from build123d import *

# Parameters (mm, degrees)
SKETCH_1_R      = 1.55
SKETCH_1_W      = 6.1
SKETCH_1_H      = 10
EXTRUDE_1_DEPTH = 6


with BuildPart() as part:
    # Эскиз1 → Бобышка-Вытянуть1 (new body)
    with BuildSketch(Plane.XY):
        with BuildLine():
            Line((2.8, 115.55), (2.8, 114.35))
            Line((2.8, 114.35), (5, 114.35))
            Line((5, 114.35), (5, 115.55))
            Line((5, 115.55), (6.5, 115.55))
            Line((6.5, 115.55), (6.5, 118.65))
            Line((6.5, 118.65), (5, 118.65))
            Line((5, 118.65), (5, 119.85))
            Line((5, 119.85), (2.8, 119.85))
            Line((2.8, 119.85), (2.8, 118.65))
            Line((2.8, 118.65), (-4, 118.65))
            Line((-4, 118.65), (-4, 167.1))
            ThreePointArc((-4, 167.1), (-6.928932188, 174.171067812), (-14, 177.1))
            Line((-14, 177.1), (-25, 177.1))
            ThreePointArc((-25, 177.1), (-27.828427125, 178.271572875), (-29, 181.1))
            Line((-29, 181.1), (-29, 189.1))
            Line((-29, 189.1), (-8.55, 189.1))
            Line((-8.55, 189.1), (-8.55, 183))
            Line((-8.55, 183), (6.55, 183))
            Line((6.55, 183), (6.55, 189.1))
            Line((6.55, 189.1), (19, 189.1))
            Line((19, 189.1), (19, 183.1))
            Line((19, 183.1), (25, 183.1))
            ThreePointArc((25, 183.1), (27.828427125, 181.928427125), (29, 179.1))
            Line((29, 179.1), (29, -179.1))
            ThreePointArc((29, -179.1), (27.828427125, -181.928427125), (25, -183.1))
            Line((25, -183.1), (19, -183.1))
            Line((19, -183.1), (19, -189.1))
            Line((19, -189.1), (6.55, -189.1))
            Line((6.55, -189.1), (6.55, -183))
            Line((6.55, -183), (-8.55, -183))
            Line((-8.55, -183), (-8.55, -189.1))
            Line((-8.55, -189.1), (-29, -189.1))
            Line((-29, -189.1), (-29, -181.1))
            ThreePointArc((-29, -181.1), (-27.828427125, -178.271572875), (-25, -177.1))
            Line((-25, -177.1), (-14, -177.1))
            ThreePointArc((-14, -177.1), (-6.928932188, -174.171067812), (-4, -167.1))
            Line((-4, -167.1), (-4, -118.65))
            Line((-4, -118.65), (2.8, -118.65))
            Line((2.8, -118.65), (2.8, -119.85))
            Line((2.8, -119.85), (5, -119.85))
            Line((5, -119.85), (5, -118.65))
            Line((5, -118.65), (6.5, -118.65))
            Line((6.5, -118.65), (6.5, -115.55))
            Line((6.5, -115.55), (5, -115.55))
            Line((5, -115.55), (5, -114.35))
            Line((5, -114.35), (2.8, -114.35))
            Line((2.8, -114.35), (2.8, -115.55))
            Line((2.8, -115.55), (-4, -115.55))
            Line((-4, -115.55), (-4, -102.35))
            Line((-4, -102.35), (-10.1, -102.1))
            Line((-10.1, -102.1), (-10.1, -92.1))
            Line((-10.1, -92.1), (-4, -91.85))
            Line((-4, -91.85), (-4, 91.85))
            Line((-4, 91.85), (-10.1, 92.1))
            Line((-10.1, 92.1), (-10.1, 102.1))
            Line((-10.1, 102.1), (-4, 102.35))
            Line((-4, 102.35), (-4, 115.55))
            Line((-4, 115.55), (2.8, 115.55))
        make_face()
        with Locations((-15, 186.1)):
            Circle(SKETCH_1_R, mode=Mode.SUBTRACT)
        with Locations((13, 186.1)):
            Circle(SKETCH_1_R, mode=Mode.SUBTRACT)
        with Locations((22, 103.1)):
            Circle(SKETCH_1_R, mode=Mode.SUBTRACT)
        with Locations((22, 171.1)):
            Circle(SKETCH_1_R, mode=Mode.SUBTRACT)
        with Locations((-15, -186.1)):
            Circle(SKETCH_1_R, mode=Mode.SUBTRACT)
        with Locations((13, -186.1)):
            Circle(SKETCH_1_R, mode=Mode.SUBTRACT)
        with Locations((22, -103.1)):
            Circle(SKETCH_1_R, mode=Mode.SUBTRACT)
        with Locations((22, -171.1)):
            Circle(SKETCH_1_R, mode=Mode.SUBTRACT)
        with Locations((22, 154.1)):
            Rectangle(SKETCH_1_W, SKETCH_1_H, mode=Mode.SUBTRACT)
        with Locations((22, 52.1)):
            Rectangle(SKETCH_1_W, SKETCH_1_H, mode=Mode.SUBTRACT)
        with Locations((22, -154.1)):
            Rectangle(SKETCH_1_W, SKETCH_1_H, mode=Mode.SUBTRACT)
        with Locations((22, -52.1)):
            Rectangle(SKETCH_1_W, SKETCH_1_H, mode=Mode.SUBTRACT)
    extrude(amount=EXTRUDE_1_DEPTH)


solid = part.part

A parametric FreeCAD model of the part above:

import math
import FreeCAD as App
import Part
import Sketcher
from FreeCAD import Vector


def add_polygon(sketch, points):
    """Adds a closed chain of lines whose ends are joined by coincident constraints."""
    first, n = sketch.GeometryCount, len(points)
    for a, b in zip(points, points[1:] + points[:1]):
        sketch.addGeometry(Part.LineSegment(App.Vector(*a, 0), App.Vector(*b, 0)), False)
    for i in range(n):
        sketch.addConstraint(Sketcher.Constraint("Coincident", first + i, 2, first + (i + 1) % n, 1))

doc = App.newDocument("Part")
body = doc.addObject("PartDesign::Body", "Body")

# Sketch on XY plane
sketch1 = body.newObject("Sketcher::SketchObject", "Sketch")
sketch1.AttachmentSupport = (doc.getObject("XY_Plane"), [""])
sketch1.MapMode = "FlatFace"
sketch1.addGeometry(Part.LineSegment(Vector(2.8, 114.3, 0), Vector(2.8, 115.5, 0)), False)  # 0
sketch1.addGeometry(Part.LineSegment(Vector(2.8, 115.5, 0), Vector(-4, 115.5, 0)), False)  # 1
sketch1.addGeometry(Part.LineSegment(Vector(-4, 115.5, 0), Vector(-4, 102.3, 0)), False)  # 2
sketch1.addGeometry(Part.LineSegment(Vector(-4, 102.3, 0), Vector(-10.1, 102.1, 0)), False)  # 3
sketch1.addGeometry(Part.LineSegment(Vector(-10.1, 102.1, 0), Vector(-10.1, 92.1, 0)), False)  # 4
sketch1.addGeometry(Part.LineSegment(Vector(-10.1, 92.1, 0), Vector(-4, 91.8, 0)), False)  # 5
sketch1.addGeometry(Part.LineSegment(Vector(-4, 91.8, 0), Vector(-4, -91.8, 0)), False)  # 6
sketch1.addGeometry(Part.LineSegment(Vector(-4, -91.8, 0), Vector(-10.1, -92.1, 0)), False)  # 7
sketch1.addGeometry(Part.LineSegment(Vector(-10.1, -92.1, 0), Vector(-10.1, -102.1, 0)), False)  # 8
sketch1.addGeometry(Part.LineSegment(Vector(-10.1, -102.1, 0), Vector(-4, -102.3, 0)), False)  # 9
sketch1.addGeometry(Part.LineSegment(Vector(-4, -102.3, 0), Vector(-4, -115.5, 0)), False)  # 10
sketch1.addGeometry(Part.LineSegment(Vector(-4, -115.5, 0), Vector(2.8, -115.5, 0)), False)  # 11
sketch1.addGeometry(Part.LineSegment(Vector(2.8, -115.5, 0), Vector(2.8, -114.3, 0)), False)  # 12
sketch1.addGeometry(Part.LineSegment(Vector(2.8, -114.3, 0), Vector(5, -114.3, 0)), False)  # 13
sketch1.addGeometry(Part.LineSegment(Vector(5, -114.3, 0), Vector(5, -115.5, 0)), False)  # 14
sketch1.addGeometry(Part.LineSegment(Vector(5, -115.5, 0), Vector(6.5, -115.5, 0)), False)  # 15
sketch1.addGeometry(Part.LineSegment(Vector(6.5, -115.5, 0), Vector(6.5, -118.7, 0)), False)  # 16
sketch1.addGeometry(Part.LineSegment(Vector(6.5, -118.7, 0), Vector(5, -118.7, 0)), False)  # 17
sketch1.addGeometry(Part.LineSegment(Vector(5, -118.7, 0), Vector(5, -119.8, 0)), False)  # 18
sketch1.addGeometry(Part.LineSegment(Vector(5, -119.8, 0), Vector(2.8, -119.8, 0)), False)  # 19
sketch1.addGeometry(Part.LineSegment(Vector(2.8, -119.8, 0), Vector(2.8, -118.7, 0)), False)  # 20
sketch1.addGeometry(Part.LineSegment(Vector(2.8, -118.7, 0), Vector(-4, -118.7, 0)), False)  # 21
sketch1.addGeometry(Part.LineSegment(Vector(-4, -118.7, 0), Vector(-4, -167.1, 0)), False)  # 22
sketch1.addGeometry(Part.ArcOfCircle(Part.Circle(Vector(-14, -167.1, 0), Vector(0, 0, 1), 10), math.radians(-90), math.radians(0)), False)  # 23
sketch1.addGeometry(Part.LineSegment(Vector(-14, -177.1, 0), Vector(-25, -177.1, 0)), False)  # 24
sketch1.addGeometry(Part.ArcOfCircle(Part.Circle(Vector(-25, -181.1, 0), Vector(0, 0, 1), 4), math.radians(90), math.radians(180)), False)  # 25
sketch1.addGeometry(Part.LineSegment(Vector(-29, -181.1, 0), Vector(-29, -189.1, 0)), False)  # 26
sketch1.addGeometry(Part.LineSegment(Vector(-29, -189.1, 0), Vector(-8.6, -189.1, 0)), False)  # 27
sketch1.addGeometry(Part.LineSegment(Vector(-8.6, -189.1, 0), Vector(-8.6, -183, 0)), False)  # 28
sketch1.addGeometry(Part.LineSegment(Vector(-8.6, -183, 0), Vector(6.5, -183, 0)), False)  # 29
sketch1.addGeometry(Part.LineSegment(Vector(6.5, -183, 0), Vector(6.5, -189.1, 0)), False)  # 30
sketch1.addGeometry(Part.LineSegment(Vector(6.5, -189.1, 0), Vector(19, -189.1, 0)), False)  # 31
sketch1.addGeometry(Part.LineSegment(Vector(19, -189.1, 0), Vector(19, -183.1, 0)), False)  # 32
sketch1.addGeometry(Part.LineSegment(Vector(19, -183.1, 0), Vector(25, -183.1, 0)), False)  # 33
sketch1.addGeometry(Part.ArcOfCircle(Part.Circle(Vector(25, -179.1, 0), Vector(0, 0, 1), 4), math.radians(-90), math.radians(0)), False)  # 34
sketch1.addGeometry(Part.LineSegment(Vector(29, -179.1, 0), Vector(29, 179.1, 0)), False)  # 35
sketch1.addGeometry(Part.ArcOfCircle(Part.Circle(Vector(25, 179.1, 0), Vector(0, 0, 1), 4), math.radians(0), math.radians(90)), False)  # 36
sketch1.addGeometry(Part.LineSegment(Vector(25, 183.1, 0), Vector(19, 183.1, 0)), False)  # 37
sketch1.addGeometry(Part.LineSegment(Vector(19, 183.1, 0), Vector(19, 189.1, 0)), False)  # 38
sketch1.addGeometry(Part.LineSegment(Vector(19, 189.1, 0), Vector(6.5, 189.1, 0)), False)  # 39
sketch1.addGeometry(Part.LineSegment(Vector(6.5, 189.1, 0), Vector(6.5, 183, 0)), False)  # 40
sketch1.addGeometry(Part.LineSegment(Vector(6.5, 183, 0), Vector(-8.6, 183, 0)), False)  # 41
sketch1.addGeometry(Part.LineSegment(Vector(-8.6, 183, 0), Vector(-8.6, 189.1, 0)), False)  # 42
sketch1.addGeometry(Part.LineSegment(Vector(-8.6, 189.1, 0), Vector(-29, 189.1, 0)), False)  # 43
sketch1.addGeometry(Part.LineSegment(Vector(-29, 189.1, 0), Vector(-29, 181.1, 0)), False)  # 44
sketch1.addGeometry(Part.ArcOfCircle(Part.Circle(Vector(-25, 181.1, 0), Vector(0, 0, 1), 4), math.radians(180), math.radians(270)), False)  # 45
sketch1.addGeometry(Part.LineSegment(Vector(-25, 177.1, 0), Vector(-14, 177.1, 0)), False)  # 46
sketch1.addGeometry(Part.ArcOfCircle(Part.Circle(Vector(-14, 167.1, 0), Vector(0, 0, 1), 10), math.radians(0), math.radians(90)), False)  # 47
sketch1.addGeometry(Part.LineSegment(Vector(-4, 167.1, 0), Vector(-4, 118.7, 0)), False)  # 48
sketch1.addGeometry(Part.LineSegment(Vector(-4, 118.7, 0), Vector(2.8, 118.7, 0)), False)  # 49
sketch1.addGeometry(Part.LineSegment(Vector(2.8, 118.7, 0), Vector(2.8, 119.8, 0)), False)  # 50
sketch1.addGeometry(Part.LineSegment(Vector(2.8, 119.8, 0), Vector(5, 119.8, 0)), False)  # 51
sketch1.addGeometry(Part.LineSegment(Vector(5, 119.8, 0), Vector(5, 118.7, 0)), False)  # 52
sketch1.addGeometry(Part.LineSegment(Vector(5, 118.7, 0), Vector(6.5, 118.7, 0)), False)  # 53
sketch1.addGeometry(Part.LineSegment(Vector(6.5, 118.7, 0), Vector(6.5, 115.5, 0)), False)  # 54
sketch1.addGeometry(Part.LineSegment(Vector(6.5, 115.5, 0), Vector(5, 115.5, 0)), False)  # 55
sketch1.addGeometry(Part.LineSegment(Vector(5, 115.5, 0), Vector(5, 114.3, 0)), False)  # 56
sketch1.addGeometry(Part.LineSegment(Vector(5, 114.3, 0), Vector(2.8, 114.3, 0)), False)  # 57
sketch1.addGeometry(Part.Circle(Vector(22, -171.1, 0), Vector(0, 0, 1), 1.6), False)  # 58
add_polygon(sketch1, [(18.9, -159.1), (18.9, -149.1), (25.1, -149.1), (25.1, -159.1)])  # lines 59-62
sketch1.addGeometry(Part.Circle(Vector(22, -103.1, 0), Vector(0, 0, 1), 1.6), False)  # 63
sketch1.addGeometry(Part.Circle(Vector(13, -186.1, 0), Vector(0, 0, 1), 1.6), False)  # 64
add_polygon(sketch1, [(18.9, -57.1), (18.9, -47.1), (25.1, -47.1), (25.1, -57.1)])  # lines 65-68
sketch1.addGeometry(Part.Circle(Vector(-15, -186.1, 0), Vector(0, 0, 1), 1.6), False)  # 69
add_polygon(sketch1, [(18.9, 47.1), (18.9, 57.1), (25.1, 57.1), (25.1, 47.1)])  # lines 70-73
sketch1.addGeometry(Part.Circle(Vector(22, 103.1, 0), Vector(0, 0, 1), 1.6), False)  # 74
add_polygon(sketch1, [(18.9, 149.1), (18.9, 159.1), (25.1, 159.1), (25.1, 149.1)])  # lines 75-78
sketch1.addGeometry(Part.Circle(Vector(22, 171.1, 0), Vector(0, 0, 1), 1.6), False)  # 79
sketch1.addGeometry(Part.Circle(Vector(13, 186.1, 0), Vector(0, 0, 1), 1.6), False)  # 80
sketch1.addGeometry(Part.Circle(Vector(-15, 186.1, 0), Vector(0, 0, 1), 1.6), False)  # 81
sketch1.addConstraint([
    Sketcher.Constraint("Coincident", 0, 2, 1, 1),
    Sketcher.Constraint("Coincident", 1, 2, 2, 1),
    Sketcher.Constraint("Coincident", 2, 2, 3, 1),
    Sketcher.Constraint("Coincident", 3, 2, 4, 1),
    Sketcher.Constraint("Coincident", 4, 2, 5, 1),
    Sketcher.Constraint("Coincident", 5, 2, 6, 1),
    Sketcher.Constraint("Coincident", 6, 2, 7, 1),
    Sketcher.Constraint("Coincident", 7, 2, 8, 1),
    Sketcher.Constraint("Coincident", 8, 2, 9, 1),
    Sketcher.Constraint("Coincident", 9, 2, 10, 1),
    Sketcher.Constraint("Coincident", 10, 2, 11, 1),
    Sketcher.Constraint("Coincident", 11, 2, 12, 1),
    Sketcher.Constraint("Coincident", 12, 2, 13, 1),
    Sketcher.Constraint("Coincident", 13, 2, 14, 1),
    Sketcher.Constraint("Coincident", 14, 2, 15, 1),
    Sketcher.Constraint("Coincident", 15, 2, 16, 1),
    Sketcher.Constraint("Coincident", 16, 2, 17, 1),
    Sketcher.Constraint("Coincident", 17, 2, 18, 1),
    Sketcher.Constraint("Coincident", 18, 2, 19, 1),
    Sketcher.Constraint("Coincident", 19, 2, 20, 1),
    Sketcher.Constraint("Coincident", 20, 2, 21, 1),
    Sketcher.Constraint("Coincident", 21, 2, 22, 1),
    Sketcher.Constraint("Tangent", 22, 2, 23, 2),
    Sketcher.Constraint("Tangent", 23, 1, 24, 1),
    Sketcher.Constraint("Tangent", 24, 2, 25, 1),
    Sketcher.Constraint("Tangent", 25, 2, 26, 1),
    Sketcher.Constraint("Coincident", 26, 2, 27, 1),
    Sketcher.Constraint("Coincident", 27, 2, 28, 1),
    Sketcher.Constraint("Coincident", 28, 2, 29, 1),
    Sketcher.Constraint("Coincident", 29, 2, 30, 1),
    Sketcher.Constraint("Coincident", 30, 2, 31, 1),
    Sketcher.Constraint("Coincident", 31, 2, 32, 1),
    Sketcher.Constraint("Coincident", 32, 2, 33, 1),
    Sketcher.Constraint("Tangent", 33, 2, 34, 1),
    Sketcher.Constraint("Tangent", 34, 2, 35, 1),
    Sketcher.Constraint("Tangent", 35, 2, 36, 1),
    Sketcher.Constraint("Tangent", 36, 2, 37, 1),
    Sketcher.Constraint("Coincident", 37, 2, 38, 1),
    Sketcher.Constraint("Coincident", 38, 2, 39, 1),
    Sketcher.Constraint("Coincident", 39, 2, 40, 1),
    Sketcher.Constraint("Coincident", 40, 2, 41, 1),
    Sketcher.Constraint("Coincident", 41, 2, 42, 1),
    Sketcher.Constraint("Coincident", 42, 2, 43, 1),
    Sketcher.Constraint("Coincident", 43, 2, 44, 1),
    Sketcher.Constraint("Tangent", 44, 2, 45, 1),
    Sketcher.Constraint("Tangent", 45, 2, 46, 1),
    Sketcher.Constraint("Tangent", 46, 2, 47, 2),
    Sketcher.Constraint("Tangent", 47, 1, 48, 1),
    Sketcher.Constraint("Coincident", 48, 2, 49, 1),
    Sketcher.Constraint("Coincident", 49, 2, 50, 1),
    Sketcher.Constraint("Coincident", 50, 2, 51, 1),
    Sketcher.Constraint("Coincident", 51, 2, 52, 1),
    Sketcher.Constraint("Coincident", 52, 2, 53, 1),
    Sketcher.Constraint("Coincident", 53, 2, 54, 1),
    Sketcher.Constraint("Coincident", 54, 2, 55, 1),
    Sketcher.Constraint("Coincident", 55, 2, 56, 1),
    Sketcher.Constraint("Coincident", 56, 2, 57, 1),
    Sketcher.Constraint("Coincident", 57, 2, 0, 1),
    Sketcher.Constraint("Vertical", 0),
    Sketcher.Constraint("Horizontal", 1),
    Sketcher.Constraint("Vertical", 2),
    Sketcher.Constraint("Vertical", 4),
    Sketcher.Constraint("Vertical", 6),
    Sketcher.Constraint("Vertical", 8),
    Sketcher.Constraint("Vertical", 10),
    Sketcher.Constraint("Horizontal", 11),
    Sketcher.Constraint("Vertical", 12),
    Sketcher.Constraint("Horizontal", 13),
    Sketcher.Constraint("Vertical", 14),
    Sketcher.Constraint("Horizontal", 15),
    Sketcher.Constraint("Vertical", 16),
    Sketcher.Constraint("Horizontal", 17),
    Sketcher.Constraint("Vertical", 18),
    Sketcher.Constraint("Horizontal", 19),
    Sketcher.Constraint("Vertical", 20),
    Sketcher.Constraint("Horizontal", 21),
    Sketcher.Constraint("Vertical", 22),
    Sketcher.Constraint("Horizontal", 24),
    Sketcher.Constraint("Vertical", 26),
    Sketcher.Constraint("Horizontal", 27),
    Sketcher.Constraint("Vertical", 28),
    Sketcher.Constraint("Horizontal", 29),
    Sketcher.Constraint("Vertical", 30),
    Sketcher.Constraint("Horizontal", 31),
    Sketcher.Constraint("Vertical", 32),
    Sketcher.Constraint("Horizontal", 33),
    Sketcher.Constraint("Vertical", 35),
    Sketcher.Constraint("Horizontal", 37),
    Sketcher.Constraint("Vertical", 38),
    Sketcher.Constraint("Horizontal", 39),
    Sketcher.Constraint("Vertical", 40),
    Sketcher.Constraint("Horizontal", 41),
    Sketcher.Constraint("Vertical", 42),
    Sketcher.Constraint("Horizontal", 43),
    Sketcher.Constraint("Vertical", 44),
    Sketcher.Constraint("Horizontal", 46),
    Sketcher.Constraint("Vertical", 48),
    Sketcher.Constraint("Horizontal", 49),
    Sketcher.Constraint("Vertical", 50),
    Sketcher.Constraint("Horizontal", 51),
    Sketcher.Constraint("Vertical", 52),
    Sketcher.Constraint("Horizontal", 53),
    Sketcher.Constraint("Vertical", 54),
    Sketcher.Constraint("Horizontal", 55),
    Sketcher.Constraint("Vertical", 56),
    Sketcher.Constraint("Horizontal", 57),
    Sketcher.Constraint("Vertical", 59),
    Sketcher.Constraint("Horizontal", 60),
    Sketcher.Constraint("Vertical", 61),
    Sketcher.Constraint("Horizontal", 62),
    Sketcher.Constraint("Vertical", 65),
    Sketcher.Constraint("Horizontal", 66),
    Sketcher.Constraint("Vertical", 67),
    Sketcher.Constraint("Horizontal", 68),
    Sketcher.Constraint("Vertical", 70),
    Sketcher.Constraint("Horizontal", 71),
    Sketcher.Constraint("Vertical", 72),
    Sketcher.Constraint("Horizontal", 73),
    Sketcher.Constraint("Vertical", 75),
    Sketcher.Constraint("Horizontal", 76),
    Sketcher.Constraint("Vertical", 77),
    Sketcher.Constraint("Horizontal", 78),
    Sketcher.Constraint("Equal", 25, 34),
    Sketcher.Constraint("Equal", 34, 36),
    Sketcher.Constraint("Equal", 36, 45),
    Sketcher.Constraint("Equal", 23, 47),
    Sketcher.Constraint("Equal", 58, 63),
    Sketcher.Constraint("Equal", 63, 64),
    Sketcher.Constraint("Equal", 64, 69),
    Sketcher.Constraint("Equal", 69, 74),
    Sketcher.Constraint("Equal", 74, 79),
    Sketcher.Constraint("Equal", 79, 80),
    Sketcher.Constraint("Equal", 80, 81),
    Sketcher.Constraint("Symmetric", 25, 3, 45, 3, -1),
    Sketcher.Constraint("Symmetric", 63, 3, 74, 3, -1),
    Sketcher.Constraint("Symmetric", 58, 3, 79, 3, -1),
    Sketcher.Constraint("Symmetric", 64, 3, 80, 3, -1),
    Sketcher.Constraint("Symmetric", 69, 3, 81, 3, -1),
    Sketcher.Constraint("Symmetric", 4, 2, 7, 2, -1),
    Sketcher.Constraint("Symmetric", 2, 2, 9, 2, -1),
    Sketcher.Constraint("Symmetric", 0, 2, 11, 2, -1),
    Sketcher.Constraint("Symmetric", 32, 2, 37, 2, -1),
    Sketcher.Constraint("Symmetric", 30, 2, 39, 2, -1),
    Sketcher.Constraint("Symmetric", 28, 2, 41, 2, -1),
    Sketcher.Constraint("Symmetric", 21, 2, 48, 2, -1),
    Sketcher.Constraint("Symmetric", 19, 2, 50, 2, -1),
    Sketcher.Constraint("Symmetric", 17, 2, 52, 2, -1),
    Sketcher.Constraint("Symmetric", 15, 2, 54, 2, -1),
    Sketcher.Constraint("Symmetric", 13, 2, 56, 2, -1),
    Sketcher.Constraint("Symmetric", 68, 2, 70, 2, -1),
    Sketcher.Constraint("Symmetric", 66, 2, 72, 2, -1),
    Sketcher.Constraint("Symmetric", 62, 2, 75, 2, -1),
    Sketcher.Constraint("Symmetric", 60, 2, 77, 2, -1),
    Sketcher.Constraint("Parallel", 3, 7),
    Sketcher.Constraint("Parallel", 5, 9),
    Sketcher.Constraint("Horizontal", 64, 3, 69, 3),
    Sketcher.Constraint("Horizontal", 11, 2, 14, 2),
    Sketcher.Constraint("Horizontal", 17, 2, 20, 2),
    Sketcher.Constraint("Horizontal", 27, 2, 30, 2),
    Sketcher.Constraint("Horizontal", 39, 2, 42, 2),
    Sketcher.Constraint("Vertical", 58, 3, 63, 3),
    Sketcher.Constraint("Vertical", 2, 2, 5, 2),
    Sketcher.Constraint("Vertical", 14, 2, 17, 2),
    Sketcher.Constraint("Vertical", 12, 2, 19, 2),
    Sketcher.Constraint("Vertical", 10, 2, 21, 2),
    Sketcher.Constraint("Vertical", 62, 2, 65, 2),
    Sketcher.Constraint("Vertical", 61, 2, 66, 2),
    Sketcher.Constraint("Equal", 4, 8),
    Sketcher.Constraint("Equal", 14, 18),
    Sketcher.Constraint("Equal", 78, 28),
    Sketcher.Constraint("Equal", 37, 32),
    Sketcher.Constraint("Equal", 8, 59),
    Sketcher.Constraint("Equal", 61, 65),
    Sketcher.Constraint("Radius", 23, 10.0),
    Sketcher.Constraint("Radius", 25, 4.0),
    Sketcher.Constraint("Diameter", 58, 3.1),
    Sketcher.Constraint("DistanceX", 24, 2, 24, 1, 11.0),
    Sketcher.Constraint("DistanceX", 33, 1, 33, 2, 6.0),
    Sketcher.Constraint("DistanceY", 4, 2, 4, 1, 10.0),
    Sketcher.Constraint("DistanceY", 26, 2, 26, 1, 8.0),
    Sketcher.Constraint("DistanceX", 1, 2, 1, 1, 6.8),
    Sketcher.Constraint("DistanceX", 13, 1, 13, 2, 2.2),
    Sketcher.Constraint("DistanceX", 15, 1, 15, 2, 1.5),
    Sketcher.Constraint("DistanceX", 29, 1, 29, 2, 15.1),
    Sketcher.Constraint("DistanceX", 60, 1, 60, 2, 6.1),
    Sketcher.Constraint("DistanceY", 0, 1, 0, 2, 1.2),
    Sketcher.Constraint("DistanceY", 2, 2, 2, 1, 13.2),
    Sketcher.Constraint("DistanceY", 6, 2, 6, 1, 183.7),
    Sketcher.Constraint("DistanceY", 16, 2, 16, 1, 3.1),
    Sketcher.Constraint("DistanceY", 35, 1, 35, 2, 358.2),
    Sketcher.Constraint("DistanceX", 23, 3, -1, 1, 14.0),
    Sketcher.Constraint("DistanceX", -1, 1, 34, 3, 25.0),
    Sketcher.Constraint("DistanceX", -1, 1, 58, 3, 22.0),
    Sketcher.Constraint("DistanceX", -1, 1, 64, 3, 13.0),
    Sketcher.Constraint("DistanceX", 69, 3, -1, 1, 15.0),
    Sketcher.Constraint("DistanceX", 27, 1, 27, 2, 20.45),
    Sketcher.Constraint("DistanceY", 22, 2, 22, 1, 48.45),
    Sketcher.Constraint("DistanceY", 58, 3, -1, 1, 171.1),
    Sketcher.Constraint("DistanceY", 63, 3, -1, 1, 103.1),
    Sketcher.Constraint("DistanceY", 64, 3, -1, 1, 186.1),
    Sketcher.Constraint("DistanceX", 3, 2, -1, 1, 10.1),
    Sketcher.Constraint("DistanceY", 59, 2, -1, 1, 149.1),
    Sketcher.Constraint("DistanceY", 65, 2, -1, 1, 47.1),
    Sketcher.Constraint("DistanceX", -1, 1, 59, 2, 18.95),
])
pad1 = body.newObject("PartDesign::Pad", "Pad")
pad1.Profile = sketch1
pad1.Length = 6

doc.recompute()
